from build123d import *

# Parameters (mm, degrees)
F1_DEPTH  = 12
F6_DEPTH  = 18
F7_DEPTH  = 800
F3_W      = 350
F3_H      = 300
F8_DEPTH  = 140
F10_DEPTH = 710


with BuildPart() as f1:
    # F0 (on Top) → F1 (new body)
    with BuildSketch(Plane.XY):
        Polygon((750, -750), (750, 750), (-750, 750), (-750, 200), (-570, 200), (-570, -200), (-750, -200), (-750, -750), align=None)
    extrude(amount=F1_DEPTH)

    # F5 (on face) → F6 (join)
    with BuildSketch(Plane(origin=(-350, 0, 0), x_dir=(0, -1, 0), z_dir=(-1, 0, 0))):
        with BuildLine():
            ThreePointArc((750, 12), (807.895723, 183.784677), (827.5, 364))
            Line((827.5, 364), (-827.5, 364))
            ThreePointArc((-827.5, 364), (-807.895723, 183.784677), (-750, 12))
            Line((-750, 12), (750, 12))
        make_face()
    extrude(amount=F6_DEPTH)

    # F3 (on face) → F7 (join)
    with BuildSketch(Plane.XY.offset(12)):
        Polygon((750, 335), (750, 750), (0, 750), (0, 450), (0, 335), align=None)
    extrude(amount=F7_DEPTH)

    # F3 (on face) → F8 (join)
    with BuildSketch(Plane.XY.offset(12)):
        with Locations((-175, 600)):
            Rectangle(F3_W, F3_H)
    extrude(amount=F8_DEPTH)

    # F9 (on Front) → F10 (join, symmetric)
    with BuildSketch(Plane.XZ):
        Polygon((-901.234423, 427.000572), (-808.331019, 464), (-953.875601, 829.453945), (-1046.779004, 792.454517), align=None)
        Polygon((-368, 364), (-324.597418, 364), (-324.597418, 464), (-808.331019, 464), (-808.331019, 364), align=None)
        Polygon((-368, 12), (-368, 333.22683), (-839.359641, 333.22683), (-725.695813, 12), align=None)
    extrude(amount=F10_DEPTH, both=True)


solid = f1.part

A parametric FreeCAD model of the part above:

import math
import FreeCAD as App
import Part
import Sketcher


def add_polygon(sketch, points):
    """Adds a closed chain of lines whose ends are joined by coincident constraints."""
    first, n = sketch.GeometryCount, len(points)
    for a, b in zip(points, points[1:] + points[:1]):
        sketch.addGeometry(Part.LineSegment(App.Vector(*a, 0), App.Vector(*b, 0)), False)
    for i in range(n):
        sketch.addConstraint(Sketcher.Constraint("Coincident", first + i, 2, first + (i + 1) % n, 1))

doc = App.newDocument("Part")
body = doc.addObject("PartDesign::Body", "Body")
body.AllowCompound = True

sketch1 = body.newObject("Sketcher::SketchObject", "Sketch")
sketch1.AttachmentSupport = (doc.getObject("XY_Plane"), [""])
sketch1.MapMode = "FlatFace"
add_polygon(sketch1, [(750, -750), (750, 750), (-750, 750), (-750, 200), (-570, 200), (-570, -200), (-750, -200), (-750, -750)])
sketch1.addConstraint([
    Sketcher.Constraint("Vertical", 0),
    Sketcher.Constraint("Horizontal", 1),
    Sketcher.Constraint("Vertical", 2),
    Sketcher.Constraint("Horizontal", 3),
    Sketcher.Constraint("Vertical", 4),
    Sketcher.Constraint("Horizontal", 5),
    Sketcher.Constraint("Vertical", 6),
    Sketcher.Constraint("Horizontal", 7),
    Sketcher.Constraint("Symmetric", 0, 2, 6, 2, -1, 1),
    Sketcher.Constraint("Symmetric", 2, 2, 5, 2, -1),
    Sketcher.Constraint("Equal", 7, 0),
    Sketcher.Constraint("DistanceX", 1, 2, 1, 1, 1500.0),
    Sketcher.Constraint("DistanceX", 3, 1, 3, 2, 180.0),
    Sketcher.Constraint("DistanceY", 2, 2, 2, 1, 550.0),
])
pad1 = body.newObject("PartDesign::Pad", "Pad")
pad1.Profile = sketch1
pad1.Length = 12

sketch2 = body.newObject("Sketcher::SketchObject", "Sketch001")
sketch2.AttachmentSupport = (doc.getObject("YZ_Plane"), [""])
sketch2.MapMode = "FlatFace"
sketch2.AttachmentOffset = App.Placement(App.Vector(0, 0, -350), App.Rotation())
sketch2.addGeometry([
    Part.ArcOfCircle(Part.Circle(App.Vector(11, 364, 0), App.Vector(0, 0, 1), 838), math.radians(-180), math.radians(-155)),
    Part.LineSegment(App.Vector(-828, 364, 0), App.Vector(828, 364, 0)),
    Part.ArcOfCircle(Part.Circle(App.Vector(-11, 364, 0), App.Vector(0, 0, 1), 838), math.radians(-25), math.radians(0)),
    Part.LineSegment(App.Vector(750, 12, 0), App.Vector(-750, 12, 0)),
], False)
sketch2.addConstraint([
    Sketcher.Constraint("Coincident", 0, 1, 1, 1),
    Sketcher.Constraint("Coincident", 1, 2, 2, 2),
    Sketcher.Constraint("Coincident", 2, 1, 3, 1),
    Sketcher.Constraint("Coincident", 3, 2, 0, 2),
    Sketcher.Constraint("Horizontal", 1),
    Sketcher.Constraint("Horizontal", 3),
    Sketcher.Constraint("Equal", 0, 2),
    Sketcher.Constraint("Symmetric", 0, 3, 2, 3, -2),
    Sketcher.Constraint("DistanceX", 1, 1, 1, 2, 1655.0),
    Sketcher.Constraint("DistanceX", 3, 2, 3, 1, 1500.0),
    Sketcher.Constraint("DistanceY", -1, 1, 0, 3, 364.000002),
    Sketcher.Constraint("DistanceY", -1, 1, 1, 2, 364.0),
    Sketcher.Constraint("DistanceY", -1, 1, 3, 2, 12.0),
])
pad2 = body.newObject("PartDesign::Pad", "Pad001")
pad2.Profile = sketch2
pad2.Length = 18
pad2.Reversed = True

sketch3 = body.newObject("Sketcher::SketchObject", "Sketch002")
sketch3.AttachmentSupport = (doc.getObject("XY_Plane"), [""])
sketch3.MapMode = "FlatFace"
sketch3.AttachmentOffset = App.Placement(App.Vector(0, 0, 12), App.Rotation())
add_polygon(sketch3, [(750, 335), (750, 750), (0, 750), (0, 335)])
sketch3.addConstraint([
    Sketcher.Constraint("Vertical", 0),
    Sketcher.Constraint("Horizontal", 1),
    Sketcher.Constraint("Vertical", 2),
    Sketcher.Constraint("Horizontal", 3),
    Sketcher.Constraint("PointOnObject", 1, 2, -2),
    Sketcher.Constraint("DistanceX", 1, 2, 1, 1, 750.0),
    Sketcher.Constraint("DistanceY", 0, 1, 0, 2, 415.0),
    Sketcher.Constraint("DistanceY", -1, 1, 0, 2, 750.0),
])
pad3 = body.newObject("PartDesign::Pad", "Pad002")
pad3.Profile = sketch3
pad3.Length = 800

sketch4 = body.newObject("Sketcher::SketchObject", "Sketch003")
sketch4.AttachmentSupport = (doc.getObject("XY_Plane"), [""])
sketch4.MapMode = "FlatFace"
sketch4.AttachmentOffset = App.Placement(App.Vector(0, 0, 12), App.Rotation())
add_polygon(sketch4, [(-350, 750), (-350, 450), (0, 450), (0, 750)])
sketch4.addConstraint([
    Sketcher.Constraint("Vertical", 0),
    Sketcher.Constraint("Horizontal", 1),
    Sketcher.Constraint("Vertical", 2),
    Sketcher.Constraint("Horizontal", 3),
    Sketcher.Constraint("PointOnObject", 1, 2, -2),
    Sketcher.Constraint("DistanceX", 1, 1, 1, 2, 350.0),
    Sketcher.Constraint("DistanceY", 0, 2, 0, 1, 300.0),
    Sketcher.Constraint("DistanceY", -1, 1, 0, 2, 450.0),
])
pad4 = body.newObject("PartDesign::Pad", "Pad003")
pad4.Profile = sketch4
pad4.Length = 140

sketch5 = body.newObject("Sketcher::SketchObject", "Sketch004")
sketch5.AttachmentSupport = (doc.getObject("XZ_Plane"), [""])
sketch5.MapMode = "FlatFace"
add_polygon(sketch5, [(-901, 427), (-808, 464), (-954, 829), (-1047, 792)])
add_polygon(sketch5, [(-325, 364), (-325, 464), (-808, 464), (-808, 364)])
add_polygon(sketch5, [(-368, 12), (-368, 333), (-839, 333), (-726, 12)])
sketch5.addConstraint([
    Sketcher.Constraint("Vertical", 4),
    Sketcher.Constraint("Horizontal", 5),
    Sketcher.Constraint("Vertical", 6),
    Sketcher.Constraint("Horizontal", 7),
    Sketcher.Constraint("Vertical", 8),
    Sketcher.Constraint("Horizontal", 9),
    Sketcher.Constraint("Horizontal", 11),
    Sketcher.Constraint("Coincident", 5, 2, 0, 2),
    Sketcher.Constraint("Perpendicular", 0, 1),
    Sketcher.Constraint("Perpendicular", 1, 2),
    Sketcher.Constraint("Perpendicular", 2, 3),
    Sketcher.Constraint("DistanceY", 4, 1, 4, 2, 100.0),
    Sketcher.Constraint("Distance", 0, 100.000001),
    Sketcher.Constraint("DistanceY", -1, 1, 0, 2, 464.0),
    Sketcher.Constraint("DistanceX", 8, 2, -1, 1, 368.0),
    Sketcher.Constraint("DistanceY", -1, 1, 10, 2, 12.0),
    Sketcher.Constraint("DistanceX", 5, 2, 5, 1, 483.733601),
    Sketcher.Constraint("DistanceX", 9, 2, 9, 1, 471.359641),
    Sketcher.Constraint("DistanceY", 8, 1, 8, 2, 321.22683),
    Sketcher.Constraint("DistanceX", 1, 2, -1, 1, 953.875601),
    Sketcher.Constraint("DistanceX", 11, 1, 11, 2, 357.695813),
    Sketcher.Constraint("DistanceX", 0, 2, -1, 1, 808.331019),
    Sketcher.Constraint("DistanceY", -1, 1, 3, 2, 427.000572),
])
pad5 = body.newObject("PartDesign::Pad", "Pad004")
pad5.Profile = sketch5
pad5.Length = 1420
pad5.Midplane = True

doc.recompute()
